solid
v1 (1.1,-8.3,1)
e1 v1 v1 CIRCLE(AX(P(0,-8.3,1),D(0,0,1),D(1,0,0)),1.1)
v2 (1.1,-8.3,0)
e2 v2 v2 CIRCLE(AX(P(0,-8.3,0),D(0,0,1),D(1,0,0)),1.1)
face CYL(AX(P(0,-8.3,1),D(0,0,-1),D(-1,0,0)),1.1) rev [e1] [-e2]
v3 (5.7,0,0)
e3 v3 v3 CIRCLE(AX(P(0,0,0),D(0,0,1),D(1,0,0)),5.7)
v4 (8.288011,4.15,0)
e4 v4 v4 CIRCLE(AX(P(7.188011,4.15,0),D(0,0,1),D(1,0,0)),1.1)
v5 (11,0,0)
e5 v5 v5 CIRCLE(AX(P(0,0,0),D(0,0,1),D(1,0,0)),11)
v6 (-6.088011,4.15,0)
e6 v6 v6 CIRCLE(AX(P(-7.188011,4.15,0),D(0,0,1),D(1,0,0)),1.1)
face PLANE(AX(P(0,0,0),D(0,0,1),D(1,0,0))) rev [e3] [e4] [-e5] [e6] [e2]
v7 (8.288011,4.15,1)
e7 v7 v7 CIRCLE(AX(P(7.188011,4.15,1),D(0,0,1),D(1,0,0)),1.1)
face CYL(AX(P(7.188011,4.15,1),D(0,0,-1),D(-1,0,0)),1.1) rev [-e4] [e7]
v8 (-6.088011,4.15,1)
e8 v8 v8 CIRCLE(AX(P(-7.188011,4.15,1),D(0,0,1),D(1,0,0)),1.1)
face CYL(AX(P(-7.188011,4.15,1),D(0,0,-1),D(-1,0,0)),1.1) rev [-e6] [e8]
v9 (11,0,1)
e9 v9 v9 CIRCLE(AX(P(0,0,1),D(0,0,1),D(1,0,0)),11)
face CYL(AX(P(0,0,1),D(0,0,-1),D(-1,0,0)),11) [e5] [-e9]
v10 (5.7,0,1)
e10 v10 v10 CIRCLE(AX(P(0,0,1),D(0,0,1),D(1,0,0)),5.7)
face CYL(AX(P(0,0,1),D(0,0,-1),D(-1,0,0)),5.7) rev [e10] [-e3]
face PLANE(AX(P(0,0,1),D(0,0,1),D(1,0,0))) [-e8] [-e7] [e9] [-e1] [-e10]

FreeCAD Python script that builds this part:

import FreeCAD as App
import Part
import Sketcher

V = App.Vector

doc = App.newDocument("Part")
params = doc.addObject("Spreadsheet::Sheet", "Params")
for row, (alias, value) in enumerate([
    ("sketch1_diameter", "22 mm"),
    ("sketch1_diameter2", "2.2 mm"),
    ("sketch1_diameter3", "11.4 mm"),
    ("pad1_length", "1 mm"),
], start=1):
    params.set(f"A{row}", alias)
    params.set(f"B{row}", "=" + value)
    params.setAlias(f"B{row}", alias)

body = doc.addObject("PartDesign::Body", "Body")

sketch1 = body.newObject("Sketcher::SketchObject", "Sketch")
sketch1.AttachmentSupport = (doc.getObject("XY_Plane"), [""])
sketch1.MapMode = "FlatFace"
sketch1.addGeometry([
    Part.Circle(V(0, 0, 0), V(0, 0, 1), 11),
    Part.Circle(V(0, -8.3, 0), V(0, 0, 1), 1.1),
    Part.Circle(V(-7.188011, 4.15, 0), V(0, 0, 1), 1.1),
    Part.Circle(V(0, 0, 0), V(0, 0, 1), 5.7),
    Part.Circle(V(7.188011, 4.15, 0), V(0, 0, 1), 1.1),
], False)
sketch1.addConstraint([
    Sketcher.Constraint("Coincident", 0, 3, -1, 1),
    Sketcher.Constraint("Coincident", 3, 3, -1, 1),
    Sketcher.Constraint("Equal", 1, 2),
    Sketcher.Constraint("Equal", 2, 4),
    Sketcher.Constraint("Symmetric", 2, 3, 4, 3, -2),
    Sketcher.Constraint("PointOnObject", 1, 3, -2),
    Sketcher.Constraint("Diameter", 0, 22.0),
    Sketcher.Constraint("Diameter", 1, 2.2),
    Sketcher.Constraint("Diameter", 3, 11.4),
    Sketcher.Constraint("DistanceY", 1, 3, -1, 1, 8.3),
    Sketcher.Constraint("DistanceY", -1, 1, 2, 3, 4.15),
    Sketcher.Constraint("DistanceX", 2, 3, -1, 1, 7.188011),
])
sketch1.setExpression("Constraints[6]", "Params.sketch1_diameter")
sketch1.setExpression("Constraints[7]", "Params.sketch1_diameter2")
sketch1.setExpression("Constraints[8]", "Params.sketch1_diameter3")
pad1 = body.newObject("PartDesign::Pad", "Pad")
pad1.Profile = sketch1
pad1.setExpression("Length", "Params.pad1_length")

doc.recompute()
